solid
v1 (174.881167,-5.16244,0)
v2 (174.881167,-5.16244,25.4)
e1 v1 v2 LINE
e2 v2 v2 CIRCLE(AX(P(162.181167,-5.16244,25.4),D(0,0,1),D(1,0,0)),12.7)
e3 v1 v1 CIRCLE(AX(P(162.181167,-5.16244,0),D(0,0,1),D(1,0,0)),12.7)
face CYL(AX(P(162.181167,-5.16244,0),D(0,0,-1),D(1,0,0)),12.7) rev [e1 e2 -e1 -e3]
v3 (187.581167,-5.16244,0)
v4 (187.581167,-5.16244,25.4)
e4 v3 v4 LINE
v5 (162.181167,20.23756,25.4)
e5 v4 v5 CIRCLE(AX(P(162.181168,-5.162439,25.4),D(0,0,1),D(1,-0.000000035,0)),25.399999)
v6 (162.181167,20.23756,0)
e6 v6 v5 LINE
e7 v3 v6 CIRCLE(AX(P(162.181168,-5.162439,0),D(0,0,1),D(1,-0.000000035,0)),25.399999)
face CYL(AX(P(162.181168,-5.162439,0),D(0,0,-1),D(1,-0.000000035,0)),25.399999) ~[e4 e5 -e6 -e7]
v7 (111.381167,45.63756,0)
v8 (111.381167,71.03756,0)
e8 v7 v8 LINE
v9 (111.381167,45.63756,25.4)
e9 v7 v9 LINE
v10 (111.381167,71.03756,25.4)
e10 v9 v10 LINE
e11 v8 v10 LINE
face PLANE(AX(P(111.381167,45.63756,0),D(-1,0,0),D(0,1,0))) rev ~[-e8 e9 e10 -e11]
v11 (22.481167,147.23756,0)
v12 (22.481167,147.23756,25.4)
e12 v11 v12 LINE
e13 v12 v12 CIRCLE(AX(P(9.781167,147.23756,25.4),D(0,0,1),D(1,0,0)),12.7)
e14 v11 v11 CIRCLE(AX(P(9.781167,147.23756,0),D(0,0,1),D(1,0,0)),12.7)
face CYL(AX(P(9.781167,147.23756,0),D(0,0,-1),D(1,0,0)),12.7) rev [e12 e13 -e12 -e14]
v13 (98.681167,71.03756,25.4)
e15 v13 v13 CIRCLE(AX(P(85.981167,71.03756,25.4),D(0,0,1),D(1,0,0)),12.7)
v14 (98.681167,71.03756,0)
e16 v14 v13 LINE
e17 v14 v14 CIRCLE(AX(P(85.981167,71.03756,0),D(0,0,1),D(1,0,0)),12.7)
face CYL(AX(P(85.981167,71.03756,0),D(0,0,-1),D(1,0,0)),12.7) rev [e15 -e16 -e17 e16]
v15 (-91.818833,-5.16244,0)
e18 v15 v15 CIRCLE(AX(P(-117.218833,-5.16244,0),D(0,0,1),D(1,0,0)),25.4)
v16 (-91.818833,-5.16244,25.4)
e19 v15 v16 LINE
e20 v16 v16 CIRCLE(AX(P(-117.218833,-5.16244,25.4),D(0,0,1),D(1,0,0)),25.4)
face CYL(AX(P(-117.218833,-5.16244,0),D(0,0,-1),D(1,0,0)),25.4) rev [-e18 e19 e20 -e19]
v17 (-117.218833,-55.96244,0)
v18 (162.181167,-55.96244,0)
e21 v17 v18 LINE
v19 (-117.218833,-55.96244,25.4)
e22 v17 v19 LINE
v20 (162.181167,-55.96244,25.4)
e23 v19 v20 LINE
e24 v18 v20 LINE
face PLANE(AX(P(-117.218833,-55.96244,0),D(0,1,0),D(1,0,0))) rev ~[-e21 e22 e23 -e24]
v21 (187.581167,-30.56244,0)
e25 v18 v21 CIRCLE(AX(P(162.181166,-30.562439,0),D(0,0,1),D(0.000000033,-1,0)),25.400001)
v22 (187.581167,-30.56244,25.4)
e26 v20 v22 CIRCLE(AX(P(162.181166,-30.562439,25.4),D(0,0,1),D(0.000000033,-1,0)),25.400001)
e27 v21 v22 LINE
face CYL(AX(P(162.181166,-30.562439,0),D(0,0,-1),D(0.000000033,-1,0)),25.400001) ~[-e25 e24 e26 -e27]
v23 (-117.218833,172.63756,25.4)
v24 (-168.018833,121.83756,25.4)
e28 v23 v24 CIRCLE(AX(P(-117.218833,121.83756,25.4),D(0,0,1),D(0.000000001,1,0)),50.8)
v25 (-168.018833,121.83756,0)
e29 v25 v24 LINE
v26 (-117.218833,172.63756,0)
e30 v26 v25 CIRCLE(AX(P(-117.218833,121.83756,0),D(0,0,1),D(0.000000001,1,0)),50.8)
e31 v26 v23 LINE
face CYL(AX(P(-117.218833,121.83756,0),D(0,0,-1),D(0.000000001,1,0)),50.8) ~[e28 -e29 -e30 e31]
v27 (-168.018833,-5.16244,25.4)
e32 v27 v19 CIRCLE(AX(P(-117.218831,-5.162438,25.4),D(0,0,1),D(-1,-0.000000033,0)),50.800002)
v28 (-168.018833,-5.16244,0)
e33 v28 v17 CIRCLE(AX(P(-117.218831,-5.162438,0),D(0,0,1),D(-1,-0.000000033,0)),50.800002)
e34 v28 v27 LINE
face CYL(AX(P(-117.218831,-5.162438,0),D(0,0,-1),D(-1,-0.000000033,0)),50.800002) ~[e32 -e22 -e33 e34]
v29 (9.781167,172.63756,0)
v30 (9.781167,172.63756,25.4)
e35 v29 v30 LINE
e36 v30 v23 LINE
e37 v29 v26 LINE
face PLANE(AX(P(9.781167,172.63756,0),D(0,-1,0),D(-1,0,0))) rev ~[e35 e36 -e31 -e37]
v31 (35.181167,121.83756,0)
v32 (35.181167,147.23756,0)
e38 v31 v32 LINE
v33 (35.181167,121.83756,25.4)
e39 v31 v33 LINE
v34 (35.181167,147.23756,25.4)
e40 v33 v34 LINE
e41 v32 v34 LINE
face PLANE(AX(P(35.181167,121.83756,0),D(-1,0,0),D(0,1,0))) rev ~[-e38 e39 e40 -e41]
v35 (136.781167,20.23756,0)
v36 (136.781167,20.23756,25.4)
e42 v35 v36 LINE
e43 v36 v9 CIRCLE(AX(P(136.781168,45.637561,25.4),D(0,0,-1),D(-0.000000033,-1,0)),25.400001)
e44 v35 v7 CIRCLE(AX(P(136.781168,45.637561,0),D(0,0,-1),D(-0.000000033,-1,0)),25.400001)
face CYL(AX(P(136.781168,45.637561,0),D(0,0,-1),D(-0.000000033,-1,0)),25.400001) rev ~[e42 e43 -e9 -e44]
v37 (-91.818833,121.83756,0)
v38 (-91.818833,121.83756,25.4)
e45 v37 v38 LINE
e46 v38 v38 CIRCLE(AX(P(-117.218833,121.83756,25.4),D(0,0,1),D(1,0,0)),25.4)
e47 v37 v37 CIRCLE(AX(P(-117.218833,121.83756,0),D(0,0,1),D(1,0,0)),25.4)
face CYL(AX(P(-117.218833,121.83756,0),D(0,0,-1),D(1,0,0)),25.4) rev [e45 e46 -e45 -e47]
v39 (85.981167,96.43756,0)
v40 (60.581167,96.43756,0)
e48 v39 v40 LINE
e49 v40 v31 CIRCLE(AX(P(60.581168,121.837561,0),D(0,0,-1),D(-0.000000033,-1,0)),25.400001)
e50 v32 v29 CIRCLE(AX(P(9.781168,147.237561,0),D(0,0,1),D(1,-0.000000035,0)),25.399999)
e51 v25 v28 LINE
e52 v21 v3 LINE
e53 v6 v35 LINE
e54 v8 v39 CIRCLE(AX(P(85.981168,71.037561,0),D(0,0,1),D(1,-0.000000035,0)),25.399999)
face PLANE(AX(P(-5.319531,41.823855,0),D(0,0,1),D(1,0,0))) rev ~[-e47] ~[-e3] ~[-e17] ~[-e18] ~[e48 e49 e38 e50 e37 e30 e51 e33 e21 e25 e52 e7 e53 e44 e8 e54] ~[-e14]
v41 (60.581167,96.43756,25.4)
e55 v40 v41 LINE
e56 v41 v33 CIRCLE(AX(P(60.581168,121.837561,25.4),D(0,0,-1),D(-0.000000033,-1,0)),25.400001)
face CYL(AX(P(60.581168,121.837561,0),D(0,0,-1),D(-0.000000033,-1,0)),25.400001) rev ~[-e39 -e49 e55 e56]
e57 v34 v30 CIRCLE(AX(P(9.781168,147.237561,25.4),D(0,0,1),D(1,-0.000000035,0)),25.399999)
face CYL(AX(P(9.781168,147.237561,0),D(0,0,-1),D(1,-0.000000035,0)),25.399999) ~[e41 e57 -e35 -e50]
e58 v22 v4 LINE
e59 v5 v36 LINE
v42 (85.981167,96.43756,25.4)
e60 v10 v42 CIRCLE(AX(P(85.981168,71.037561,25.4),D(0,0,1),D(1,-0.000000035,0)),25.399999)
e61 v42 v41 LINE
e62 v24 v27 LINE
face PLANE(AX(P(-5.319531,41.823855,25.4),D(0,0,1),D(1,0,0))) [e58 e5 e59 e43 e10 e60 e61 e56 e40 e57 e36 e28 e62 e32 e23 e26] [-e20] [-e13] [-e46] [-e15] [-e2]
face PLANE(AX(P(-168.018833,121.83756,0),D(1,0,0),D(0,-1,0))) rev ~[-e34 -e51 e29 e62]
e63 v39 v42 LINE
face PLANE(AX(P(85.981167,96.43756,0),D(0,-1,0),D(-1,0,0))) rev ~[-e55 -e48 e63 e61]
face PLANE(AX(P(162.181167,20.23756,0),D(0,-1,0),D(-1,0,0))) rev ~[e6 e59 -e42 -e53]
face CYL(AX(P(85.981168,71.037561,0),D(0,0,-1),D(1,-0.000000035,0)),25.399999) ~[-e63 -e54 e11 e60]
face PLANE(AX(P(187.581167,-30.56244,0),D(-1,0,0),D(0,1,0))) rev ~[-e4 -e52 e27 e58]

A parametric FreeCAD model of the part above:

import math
import FreeCAD as App
import Part
import Sketcher

V = App.Vector
Q = App.Units.Quantity

doc = App.newDocument("Part")
body = doc.addObject("PartDesign::Body", "Body")

# Sketch on XY plane
sketch1 = doc.addObject("Sketcher::SketchObject", "Sketch")
body.addObject(sketch1)
sketch1.AttachmentSupport = (doc.XY_Plane, [""])
sketch1.MapMode = "FlatFace"
sketch1.addGeometry([
    Part.LineSegment(V(-117, -56, 0), V(162, -56, 0)),  # 0
    Part.ArcOfCircle(Part.Circle(V(162, -31, 0), V(0, 0, 1), 25), math.radians(-90), math.radians(0)),  # 1
    Part.LineSegment(V(188, -31, 0), V(188, -5, 0)),  # 2
    Part.ArcOfCircle(Part.Circle(V(162, -5, 0), V(0, 0, 1), 25), math.radians(0), math.radians(90)),  # 3
    Part.LineSegment(V(162, 20, 0), V(137, 20, 0)),  # 4
    Part.ArcOfCircle(Part.Circle(V(137, 46, 0), V(0, 0, 1), 25), math.radians(-180), math.radians(-90)),  # 5
    Part.LineSegment(V(111, 46, 0), V(111, 71, 0)),  # 6
    Part.ArcOfCircle(Part.Circle(V(86, 71, 0), V(0, 0, 1), 25), math.radians(0), math.radians(90)),  # 7
    Part.LineSegment(V(86, 96, 0), V(61, 96, 0)),  # 8
    Part.ArcOfCircle(Part.Circle(V(61, 122, 0), V(0, 0, 1), 25), math.radians(-180), math.radians(-90)),  # 9
    Part.LineSegment(V(35, 122, 0), V(35, 147, 0)),  # 10
    Part.ArcOfCircle(Part.Circle(V(10, 147, 0), V(0, 0, 1), 25), math.radians(0), math.radians(90)),  # 11
    Part.LineSegment(V(10, 173, 0), V(-117, 173, 0)),  # 12
    Part.ArcOfCircle(Part.Circle(V(-117, 122, 0), V(0, 0, 1), 51), math.radians(90), math.radians(180)),  # 13
    Part.LineSegment(V(-168, 122, 0), V(-168, -5, 0)),  # 14
    Part.ArcOfCircle(Part.Circle(V(-117, -5, 0), V(0, 0, 1), 51), math.radians(-180), math.radians(-90)),  # 15
    Part.Circle(V(-117, -5, 0), V(0, 0, 1), 25),  # 16
    Part.Circle(V(162, -5, 0), V(0, 0, 1), 13),  # 17
    Part.Circle(V(-117, 122, 0), V(0, 0, 1), 25),  # 18
    Part.Circle(V(10, 147, 0), V(0, 0, 1), 13),  # 19
    Part.Circle(V(86, 71, 0), V(0, 0, 1), 13),  # 20
], False)
sketch1.addConstraint([
    Sketcher.Constraint("Tangent", 0, 2, 1, 1),
    Sketcher.Constraint("Tangent", 1, 2, 2, 1),
    Sketcher.Constraint("Tangent", 2, 2, 3, 1),
    Sketcher.Constraint("Tangent", 3, 2, 4, 1),
    Sketcher.Constraint("Tangent", 4, 2, 5, 2),
    Sketcher.Constraint("Tangent", 5, 1, 6, 1),
    Sketcher.Constraint("Tangent", 6, 2, 7, 1),
    Sketcher.Constraint("Tangent", 7, 2, 8, 1),
    Sketcher.Constraint("Tangent", 8, 2, 9, 2),
    Sketcher.Constraint("Tangent", 9, 1, 10, 1),
    Sketcher.Constraint("Tangent", 10, 2, 11, 1),
    Sketcher.Constraint("Tangent", 11, 2, 12, 1),
    Sketcher.Constraint("Tangent", 12, 2, 13, 1),
    Sketcher.Constraint("Tangent", 13, 2, 14, 1),
    Sketcher.Constraint("Tangent", 14, 2, 15, 1),
    Sketcher.Constraint("Tangent", 15, 2, 0, 1),
    Sketcher.Constraint("Horizontal", 0),
    Sketcher.Constraint("Vertical", 2),
    Sketcher.Constraint("Horizontal", 4),
    Sketcher.Constraint("Vertical", 6),
    Sketcher.Constraint("Horizontal", 8),
    Sketcher.Constraint("Vertical", 10),
    Sketcher.Constraint("Horizontal", 12),
    Sketcher.Constraint("Vertical", 14),
    Sketcher.Constraint("Coincident", 16, 3, 15, 3),
    Sketcher.Constraint("Coincident", 17, 3, 3, 3),
    Sketcher.Constraint("Coincident", 18, 3, 13, 3),
    Sketcher.Constraint("Coincident", 19, 3, 11, 3),
    Sketcher.Constraint("Coincident", 20, 3, 7, 3),
    Sketcher.Constraint("Equal", 1, 3),
    Sketcher.Constraint("Equal", 3, 5),
    Sketcher.Constraint("Equal", 5, 7),
    Sketcher.Constraint("Equal", 7, 9),
    Sketcher.Constraint("Equal", 9, 11),
    Sketcher.Constraint("Equal", 13, 15),
    Sketcher.Constraint("Equal", 11, 16),
    Sketcher.Constraint("Equal", 16, 18),
    Sketcher.Constraint("Equal", 17, 19),
    Sketcher.Constraint("Equal", 19, 20),
    Sketcher.Constraint("Horizontal", 9, 3, 13, 3),
    Sketcher.Constraint("Horizontal", 3, 3, 15, 3),
    Sketcher.Constraint("Equal", 4, 8),
    Sketcher.Constraint("Equal", 8, 2),
    Sketcher.Constraint("Equal", 2, 6),
    Sketcher.Constraint("Equal", 12, 14),
    Sketcher.Constraint("Diameter", 16, Q("2 in")),
    Sketcher.Constraint("Diameter", 17, Q("1 in")),
    Sketcher.Constraint("Radius", 13, Q("2 in")),
    Sketcher.Constraint("DistanceY", 1, 3, -1, 1, 30.562439),
    Sketcher.Constraint("DistanceX", 15, 3, -1, 1, 117.218831),
])
pad1 = doc.addObject("PartDesign::Pad", "Pad")
body.addObject(pad1)
pad1.Profile = sketch1
pad1.Length = Q("1 in")

doc.recompute()
